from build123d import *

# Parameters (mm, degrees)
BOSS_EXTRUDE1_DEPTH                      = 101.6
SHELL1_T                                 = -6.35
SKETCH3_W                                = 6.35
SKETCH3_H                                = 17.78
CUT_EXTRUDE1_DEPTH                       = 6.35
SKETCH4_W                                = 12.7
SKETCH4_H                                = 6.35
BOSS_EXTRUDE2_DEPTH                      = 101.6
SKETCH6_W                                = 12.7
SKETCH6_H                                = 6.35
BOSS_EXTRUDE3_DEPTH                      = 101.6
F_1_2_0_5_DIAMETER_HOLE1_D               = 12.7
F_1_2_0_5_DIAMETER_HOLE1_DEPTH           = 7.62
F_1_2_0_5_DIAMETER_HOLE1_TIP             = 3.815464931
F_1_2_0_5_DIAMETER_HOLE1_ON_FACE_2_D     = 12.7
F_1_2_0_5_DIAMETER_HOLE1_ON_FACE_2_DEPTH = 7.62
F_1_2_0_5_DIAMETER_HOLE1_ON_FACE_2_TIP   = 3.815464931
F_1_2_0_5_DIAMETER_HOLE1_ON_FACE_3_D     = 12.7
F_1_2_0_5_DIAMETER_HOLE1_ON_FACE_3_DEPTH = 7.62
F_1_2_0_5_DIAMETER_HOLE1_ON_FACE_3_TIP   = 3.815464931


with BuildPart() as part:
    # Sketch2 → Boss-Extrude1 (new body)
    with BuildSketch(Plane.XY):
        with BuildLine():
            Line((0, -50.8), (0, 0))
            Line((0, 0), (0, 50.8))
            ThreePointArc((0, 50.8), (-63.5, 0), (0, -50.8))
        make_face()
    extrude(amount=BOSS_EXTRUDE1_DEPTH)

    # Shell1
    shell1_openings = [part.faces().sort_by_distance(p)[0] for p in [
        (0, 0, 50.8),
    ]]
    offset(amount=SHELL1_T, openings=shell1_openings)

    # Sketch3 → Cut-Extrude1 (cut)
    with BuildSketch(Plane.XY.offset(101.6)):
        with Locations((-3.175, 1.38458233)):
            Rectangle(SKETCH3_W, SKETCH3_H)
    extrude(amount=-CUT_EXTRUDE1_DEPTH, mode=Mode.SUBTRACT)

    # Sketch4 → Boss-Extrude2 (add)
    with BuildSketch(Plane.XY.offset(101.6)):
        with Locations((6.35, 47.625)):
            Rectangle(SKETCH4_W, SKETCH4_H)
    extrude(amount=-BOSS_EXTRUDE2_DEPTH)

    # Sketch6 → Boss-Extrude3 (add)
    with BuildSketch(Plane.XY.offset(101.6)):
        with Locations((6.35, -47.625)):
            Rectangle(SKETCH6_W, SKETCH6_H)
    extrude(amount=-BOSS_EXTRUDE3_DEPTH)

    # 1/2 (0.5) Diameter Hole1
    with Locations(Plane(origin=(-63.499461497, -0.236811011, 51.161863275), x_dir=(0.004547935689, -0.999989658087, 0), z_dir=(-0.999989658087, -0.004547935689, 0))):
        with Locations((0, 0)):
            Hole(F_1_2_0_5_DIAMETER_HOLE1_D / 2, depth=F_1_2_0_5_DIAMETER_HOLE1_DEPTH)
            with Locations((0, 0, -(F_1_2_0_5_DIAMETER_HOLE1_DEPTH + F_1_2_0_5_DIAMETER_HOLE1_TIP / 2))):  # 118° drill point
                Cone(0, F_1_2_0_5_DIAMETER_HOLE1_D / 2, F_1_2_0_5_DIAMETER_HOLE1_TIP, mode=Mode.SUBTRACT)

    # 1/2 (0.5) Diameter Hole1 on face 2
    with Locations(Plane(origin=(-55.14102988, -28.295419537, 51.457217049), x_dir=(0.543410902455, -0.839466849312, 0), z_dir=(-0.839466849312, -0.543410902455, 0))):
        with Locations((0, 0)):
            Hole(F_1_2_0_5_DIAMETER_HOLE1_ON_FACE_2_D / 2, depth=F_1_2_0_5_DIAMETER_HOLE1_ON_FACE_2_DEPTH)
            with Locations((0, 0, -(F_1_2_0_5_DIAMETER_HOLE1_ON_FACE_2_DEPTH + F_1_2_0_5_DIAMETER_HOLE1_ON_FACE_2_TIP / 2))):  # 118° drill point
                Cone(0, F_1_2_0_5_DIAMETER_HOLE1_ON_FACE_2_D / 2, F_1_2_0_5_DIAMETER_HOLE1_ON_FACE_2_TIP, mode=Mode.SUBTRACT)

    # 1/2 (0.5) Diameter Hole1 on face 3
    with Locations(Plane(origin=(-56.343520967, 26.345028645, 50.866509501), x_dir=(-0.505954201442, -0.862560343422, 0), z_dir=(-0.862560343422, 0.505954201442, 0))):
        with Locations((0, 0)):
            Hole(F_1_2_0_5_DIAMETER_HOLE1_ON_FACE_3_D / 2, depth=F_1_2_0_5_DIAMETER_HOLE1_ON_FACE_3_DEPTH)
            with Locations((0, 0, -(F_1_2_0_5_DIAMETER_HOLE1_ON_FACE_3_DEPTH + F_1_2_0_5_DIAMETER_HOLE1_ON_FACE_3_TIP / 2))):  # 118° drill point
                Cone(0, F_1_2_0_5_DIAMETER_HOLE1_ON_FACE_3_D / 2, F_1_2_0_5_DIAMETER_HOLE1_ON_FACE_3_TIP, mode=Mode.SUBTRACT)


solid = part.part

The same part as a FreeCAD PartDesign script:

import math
import FreeCAD as App
import Part
import Sketcher
from FreeCAD import Vector
Q = App.Units.Quantity


def faces_at(feature, points):
    """Names of the faces that lie closest to the given points."""
    faces = feature.Shape.Faces
    near = lambda p: min(range(len(faces)), key=lambda i: faces[i].distToShape(Part.Vertex(*p))[0])
    return sorted({f"Face{near(p) + 1}" for p in points})

doc = App.newDocument("Part")
params = doc.addObject("Spreadsheet::Sheet", "Params")
for row, (alias, value) in enumerate([
    ("sketch1_height", "4 in"),
    ("sketch1_radius", "2.05 in"),
    ("pad1_length", "4 in"),
    ("thickness_wall", "0.25 in"),
    ("sketch2_height", "0.7 in"),
    ("sketch2_width", "0.25 in"),
    ("pocket1_length", "0.25 in"),
    ("sketch3_width", "0.5 in"),
    ("sketch3_height", "0.25 in"),
    ("pad2_length", "4 in"),
    ("sketch4_width", "0.5 in"),
    ("sketch4_height", "0.25 in"),
    ("pad3_length", "4 in"),
    ("sketch5_diameter", "0.5 in"),
    ("hole_diameter", "0.5 in"),
    ("hole_depth", "0.3 in"),
    ("sketch6_diameter", "0.5 in"),
    ("hole2_diameter", "0.5 in"),
    ("hole2_depth", "0.3 in"),
    ("sketch7_diameter", "0.5 in"),
    ("hole3_diameter", "0.5 in"),
    ("hole3_depth", "0.3 in"),
], start=1):
    params.set(f"A{row}", alias)
    params.set(f"B{row}", "=" + value)
    params.setAlias(f"B{row}", alias)

body = doc.addObject("PartDesign::Body", "Body")

sketch1 = body.newObject("Sketcher::SketchObject", "Sketch")
sketch1.AttachmentSupport = (doc.getObject("XY_Plane"), [""])
sketch1.MapMode = "FlatFace"
sketch1.addGeometry(Part.LineSegment(Vector(0, -50.8, 0), Vector(0, 50.8, 0)), False)
sketch1.addGeometry(Part.ArcOfCircle(Part.Circle(Vector(-11.43, 0, 0), Vector(0, 0, 1), 52.07), math.radians(77.319617), math.radians(282.680383)), False)
sketch1.addConstraint(Sketcher.Constraint("Coincident", 0, 1, 1, 2))
sketch1.addConstraint(Sketcher.Constraint("Coincident", 1, 1, 0, 2))
sketch1.addConstraint(Sketcher.Constraint("Vertical", 0))
sketch1.addConstraint(Sketcher.Constraint("Symmetric", 0, 1, 1, 1, -1, 1))
sketch1.addConstraint(Sketcher.Constraint("DistanceY", 0, 1, 0, 2, Q("4 in")))
sketch1.addConstraint(Sketcher.Constraint("Radius", 1, Q("2.05 in")))
sketch1.setExpression("Constraints[4]", "Params.sketch1_height")
sketch1.setExpression("Constraints[5]", "Params.sketch1_radius")
pad1 = body.newObject("PartDesign::Pad", "Pad")
pad1.Profile = sketch1
pad1.setExpression("Length", "Params.pad1_length")
doc.recompute()

thickness = body.newObject("PartDesign::Thickness", "Thickness")
thickness.Base = (pad1, faces_at(pad1, [(0, 0, 50.8)]))
thickness.setExpression("Value", "Params.thickness_wall")
thickness.Reversed = True
thickness.Join = "Arc"

sketch2 = body.newObject("Sketcher::SketchObject", "Sketch001")
sketch2.AttachmentSupport = (doc.getObject("XY_Plane"), [""])
sketch2.MapMode = "FlatFace"
sketch2.AttachmentOffset = App.Placement(Vector(0, 0, 4 * 25.4), App.Rotation())
sketch2.addGeometry(Part.LineSegment(Vector(-6.35, 10.274582, 0), Vector(-6.35, -7.505418, 0)), False)
sketch2.addGeometry(Part.LineSegment(Vector(-6.35, -7.505418, 0), Vector(0, -7.505418, 0)), False)
sketch2.addGeometry(Part.LineSegment(Vector(0, -7.505418, 0), Vector(0, 10.274582, 0)), False)
sketch2.addGeometry(Part.LineSegment(Vector(0, 10.274582, 0), Vector(-6.35, 10.274582, 0)), False)
sketch2.addConstraint(Sketcher.Constraint("Coincident", 0, 2, 1, 1))
sketch2.addConstraint(Sketcher.Constraint("Coincident", 1, 2, 2, 1))
sketch2.addConstraint(Sketcher.Constraint("Coincident", 2, 2, 3, 1))
sketch2.addConstraint(Sketcher.Constraint("Coincident", 3, 2, 0, 1))
sketch2.addConstraint(Sketcher.Constraint("Vertical", 0))
sketch2.addConstraint(Sketcher.Constraint("Horizontal", 1))
sketch2.addConstraint(Sketcher.Constraint("Vertical", 2))
sketch2.addConstraint(Sketcher.Constraint("Horizontal", 3))
sketch2.addConstraint(Sketcher.Constraint("PointOnObject", 1, 2, -2))
sketch2.addConstraint(Sketcher.Constraint("DistanceY", 0, 2, 0, 1, Q("0.7 in")))
sketch2.addConstraint(Sketcher.Constraint("DistanceX", 1, 1, 1, 2, Q("0.25 in")))
sketch2.addConstraint(Sketcher.Constraint("DistanceY", 0, 2, -1, 1, Q("7.505418 mm")))
sketch2.setExpression("Constraints[9]", "Params.sketch2_height")
sketch2.setExpression("Constraints[10]", "Params.sketch2_width")
pocket1 = body.newObject("PartDesign::Pocket", "Pocket")
pocket1.Profile = sketch2
pocket1.setExpression("Length", "Params.pocket1_length")

sketch3 = body.newObject("Sketcher::SketchObject", "Sketch002")
sketch3.AttachmentSupport = (doc.getObject("XY_Plane"), [""])
sketch3.MapMode = "FlatFace"
sketch3.AttachmentOffset = App.Placement(Vector(0, 0, 4 * 25.4), App.Rotation())
sketch3.addGeometry(Part.LineSegment(Vector(0, 50.8, 0), Vector(0, 44.45, 0)), False)
sketch3.addGeometry(Part.LineSegment(Vector(0, 44.45, 0), Vector(12.7, 44.45, 0)), False)
sketch3.addGeometry(Part.LineSegment(Vector(12.7, 44.45, 0), Vector(12.7, 50.8, 0)), False)
sketch3.addGeometry(Part.LineSegment(Vector(12.7, 50.8, 0), Vector(0, 50.8, 0)), False)
sketch3.addConstraint(Sketcher.Constraint("Coincident", 0, 2, 1, 1))
sketch3.addConstraint(Sketcher.Constraint("Coincident", 1, 2, 2, 1))
sketch3.addConstraint(Sketcher.Constraint("Coincident", 2, 2, 3, 1))
sketch3.addConstraint(Sketcher.Constraint("Coincident", 3, 2, 0, 1))
sketch3.addConstraint(Sketcher.Constraint("Vertical", 0))
sketch3.addConstraint(Sketcher.Constraint("Horizontal", 1))
sketch3.addConstraint(Sketcher.Constraint("Vertical", 2))
sketch3.addConstraint(Sketcher.Constraint("Horizontal", 3))
sketch3.addConstraint(Sketcher.Constraint("PointOnObject", 0, 2, -2))
sketch3.addConstraint(Sketcher.Constraint("DistanceX", 1, 1, 1, 2, Q("0.5 in")))
sketch3.addConstraint(Sketcher.Constraint("DistanceY", -1, 1, 2, 2, Q("2 in")))
sketch3.addConstraint(Sketcher.Constraint("DistanceY", 0, 2, 0, 1, Q("0.25 in")))
sketch3.setExpression("Constraints[9]", "Params.sketch3_width")
sketch3.setExpression("Constraints[11]", "Params.sketch3_height")
pad2 = body.newObject("PartDesign::Pad", "Pad001")
pad2.Profile = sketch3
pad2.setExpression("Length", "Params.pad2_length")
pad2.Reversed = True

sketch4 = body.newObject("Sketcher::SketchObject", "Sketch003")
sketch4.AttachmentSupport = (doc.getObject("XY_Plane"), [""])
sketch4.MapMode = "FlatFace"
sketch4.AttachmentOffset = App.Placement(Vector(0, 0, 4 * 25.4), App.Rotation())
sketch4.addGeometry(Part.LineSegment(Vector(0, -44.45, 0), Vector(0, -50.8, 0)), False)
sketch4.addGeometry(Part.LineSegment(Vector(0, -50.8, 0), Vector(12.7, -50.8, 0)), False)
sketch4.addGeometry(Part.LineSegment(Vector(12.7, -50.8, 0), Vector(12.7, -44.45, 0)), False)
sketch4.addGeometry(Part.LineSegment(Vector(12.7, -44.45, 0), Vector(0, -44.45, 0)), False)
sketch4.addConstraint(Sketcher.Constraint("Coincident", 0, 2, 1, 1))
sketch4.addConstraint(Sketcher.Constraint("Coincident", 1, 2, 2, 1))
sketch4.addConstraint(Sketcher.Constraint("Coincident", 2, 2, 3, 1))
sketch4.addConstraint(Sketcher.Constraint("Coincident", 3, 2, 0, 1))
sketch4.addConstraint(Sketcher.Constraint("Vertical", 0))
sketch4.addConstraint(Sketcher.Constraint("Horizontal", 1))
sketch4.addConstraint(Sketcher.Constraint("Vertical", 2))
sketch4.addConstraint(Sketcher.Constraint("Horizontal", 3))
sketch4.addConstraint(Sketcher.Constraint("PointOnObject", 0, 2, -2))
sketch4.addConstraint(Sketcher.Constraint("DistanceX", 1, 1, 1, 2, Q("0.5 in")))
sketch4.addConstraint(Sketcher.Constraint("DistanceY", 0, 2, -1, 1, Q("2 in")))
sketch4.addConstraint(Sketcher.Constraint("DistanceY", 0, 2, 0, 1, Q("0.25 in")))
sketch4.setExpression("Constraints[9]", "Params.sketch4_width")
sketch4.setExpression("Constraints[11]", "Params.sketch4_height")
pad3 = body.newObject("PartDesign::Pad", "Pad002")
pad3.Profile = sketch4
pad3.setExpression("Length", "Params.pad3_length")
pad3.Reversed = True

sketch5 = body.newObject("Sketcher::SketchObject", "Sketch004")
sketch5.Placement = App.Placement(Vector(-63.499225, -0.288793, 0), App.Rotation(Vector(0.004547936, -0.999989658, 0), Vector(0, 0, 1), Vector(-0.999989658, -0.004547936, 0), "ZXY"))
sketch5.addGeometry(Part.Circle(Vector(-0.051983, 51.161863, 0), Vector(0, 0, 1), 6.35), False)
sketch5.addConstraint(Sketcher.Constraint("Diameter", 0, Q("0.5 in")))
sketch5.addConstraint(Sketcher.Constraint("DistanceX", 0, 3, -1, 1, Q("0.051983 mm")))
sketch5.addConstraint(Sketcher.Constraint("DistanceY", -1, 1, 0, 3, Q("51.161863 mm")))
sketch5.setExpression("Constraints[0]", "Params.sketch5_diameter")
doc.recompute()
hole = body.newObject("PartDesign::Hole", "Hole")
hole.Profile = sketch5
hole.ThreadType = "None"
hole.setExpression("Diameter", "Params.hole_diameter")
hole.DepthType = "Dimension"
hole.setExpression("Depth", "Params.hole_depth")
hole.DrillPoint = "Angled"
hole.DrillPointAngle = 118

sketch6 = body.newObject("Sketcher::SketchObject", "Sketch005")
sketch6.Placement = App.Placement(Vector(-51.765812, -33.509491, 0), App.Rotation(Vector(0.543410902, -0.839466849, 0), Vector(0, 0, 0.999999999), Vector(-0.839466849, -0.543410902, 0), "ZXY"))
sketch6.addGeometry(Part.Circle(Vector(-6.21117, 51.457217, 0), Vector(0, 0, 1), 6.35), False)
sketch6.addConstraint(Sketcher.Constraint("Diameter", 0, Q("0.5 in")))
sketch6.addConstraint(Sketcher.Constraint("DistanceX", 0, 3, -1, 1, Q("6.21117 mm")))
sketch6.addConstraint(Sketcher.Constraint("DistanceY", -1, 1, 0, 3, Q("51.457217 mm")))
sketch6.setExpression("Constraints[0]", "Params.sketch6_diameter")
doc.recompute()
hole2 = body.newObject("PartDesign::Hole", "Hole001")
hole2.Profile = sketch6
hole2.ThreadType = "None"
hole2.setExpression("Diameter", "Params.hole2_diameter")
hole2.DepthType = "Dimension"
hole2.setExpression("Depth", "Params.hole2_depth")
hole2.DrillPoint = "Angled"
hole2.DrillPointAngle = 118

sketch7 = body.newObject("Sketcher::SketchObject", "Sketch006")
sketch7.Placement = App.Placement(Vector(-53.417555, 31.33327, 0), App.Rotation(Vector(-0.505954201, -0.862560343, 0), Vector(0, 0, 0.999999999), Vector(-0.862560343, 0.505954201, 0), "ZXY"))
sketch7.addGeometry(Part.Circle(Vector(5.783064, 50.866509, 0), Vector(0, 0, 1), 6.35), False)
sketch7.addConstraint(Sketcher.Constraint("Diameter", 0, Q("0.5 in")))
sketch7.addConstraint(Sketcher.Constraint("DistanceY", -1, 1, 0, 3, Q("50.866509 mm")))
sketch7.addConstraint(Sketcher.Constraint("DistanceX", -1, 1, 0, 3, Q("5.783064 mm")))
sketch7.setExpression("Constraints[0]", "Params.sketch7_diameter")
doc.recompute()
hole3 = body.newObject("PartDesign::Hole", "Hole002")
hole3.Profile = sketch7
hole3.ThreadType = "None"
hole3.setExpression("Diameter", "Params.hole3_diameter")
hole3.DepthType = "Dimension"
hole3.setExpression("Depth", "Params.hole3_depth")
hole3.DrillPoint = "Angled"
hole3.DrillPointAngle = 118

doc.recompute()
